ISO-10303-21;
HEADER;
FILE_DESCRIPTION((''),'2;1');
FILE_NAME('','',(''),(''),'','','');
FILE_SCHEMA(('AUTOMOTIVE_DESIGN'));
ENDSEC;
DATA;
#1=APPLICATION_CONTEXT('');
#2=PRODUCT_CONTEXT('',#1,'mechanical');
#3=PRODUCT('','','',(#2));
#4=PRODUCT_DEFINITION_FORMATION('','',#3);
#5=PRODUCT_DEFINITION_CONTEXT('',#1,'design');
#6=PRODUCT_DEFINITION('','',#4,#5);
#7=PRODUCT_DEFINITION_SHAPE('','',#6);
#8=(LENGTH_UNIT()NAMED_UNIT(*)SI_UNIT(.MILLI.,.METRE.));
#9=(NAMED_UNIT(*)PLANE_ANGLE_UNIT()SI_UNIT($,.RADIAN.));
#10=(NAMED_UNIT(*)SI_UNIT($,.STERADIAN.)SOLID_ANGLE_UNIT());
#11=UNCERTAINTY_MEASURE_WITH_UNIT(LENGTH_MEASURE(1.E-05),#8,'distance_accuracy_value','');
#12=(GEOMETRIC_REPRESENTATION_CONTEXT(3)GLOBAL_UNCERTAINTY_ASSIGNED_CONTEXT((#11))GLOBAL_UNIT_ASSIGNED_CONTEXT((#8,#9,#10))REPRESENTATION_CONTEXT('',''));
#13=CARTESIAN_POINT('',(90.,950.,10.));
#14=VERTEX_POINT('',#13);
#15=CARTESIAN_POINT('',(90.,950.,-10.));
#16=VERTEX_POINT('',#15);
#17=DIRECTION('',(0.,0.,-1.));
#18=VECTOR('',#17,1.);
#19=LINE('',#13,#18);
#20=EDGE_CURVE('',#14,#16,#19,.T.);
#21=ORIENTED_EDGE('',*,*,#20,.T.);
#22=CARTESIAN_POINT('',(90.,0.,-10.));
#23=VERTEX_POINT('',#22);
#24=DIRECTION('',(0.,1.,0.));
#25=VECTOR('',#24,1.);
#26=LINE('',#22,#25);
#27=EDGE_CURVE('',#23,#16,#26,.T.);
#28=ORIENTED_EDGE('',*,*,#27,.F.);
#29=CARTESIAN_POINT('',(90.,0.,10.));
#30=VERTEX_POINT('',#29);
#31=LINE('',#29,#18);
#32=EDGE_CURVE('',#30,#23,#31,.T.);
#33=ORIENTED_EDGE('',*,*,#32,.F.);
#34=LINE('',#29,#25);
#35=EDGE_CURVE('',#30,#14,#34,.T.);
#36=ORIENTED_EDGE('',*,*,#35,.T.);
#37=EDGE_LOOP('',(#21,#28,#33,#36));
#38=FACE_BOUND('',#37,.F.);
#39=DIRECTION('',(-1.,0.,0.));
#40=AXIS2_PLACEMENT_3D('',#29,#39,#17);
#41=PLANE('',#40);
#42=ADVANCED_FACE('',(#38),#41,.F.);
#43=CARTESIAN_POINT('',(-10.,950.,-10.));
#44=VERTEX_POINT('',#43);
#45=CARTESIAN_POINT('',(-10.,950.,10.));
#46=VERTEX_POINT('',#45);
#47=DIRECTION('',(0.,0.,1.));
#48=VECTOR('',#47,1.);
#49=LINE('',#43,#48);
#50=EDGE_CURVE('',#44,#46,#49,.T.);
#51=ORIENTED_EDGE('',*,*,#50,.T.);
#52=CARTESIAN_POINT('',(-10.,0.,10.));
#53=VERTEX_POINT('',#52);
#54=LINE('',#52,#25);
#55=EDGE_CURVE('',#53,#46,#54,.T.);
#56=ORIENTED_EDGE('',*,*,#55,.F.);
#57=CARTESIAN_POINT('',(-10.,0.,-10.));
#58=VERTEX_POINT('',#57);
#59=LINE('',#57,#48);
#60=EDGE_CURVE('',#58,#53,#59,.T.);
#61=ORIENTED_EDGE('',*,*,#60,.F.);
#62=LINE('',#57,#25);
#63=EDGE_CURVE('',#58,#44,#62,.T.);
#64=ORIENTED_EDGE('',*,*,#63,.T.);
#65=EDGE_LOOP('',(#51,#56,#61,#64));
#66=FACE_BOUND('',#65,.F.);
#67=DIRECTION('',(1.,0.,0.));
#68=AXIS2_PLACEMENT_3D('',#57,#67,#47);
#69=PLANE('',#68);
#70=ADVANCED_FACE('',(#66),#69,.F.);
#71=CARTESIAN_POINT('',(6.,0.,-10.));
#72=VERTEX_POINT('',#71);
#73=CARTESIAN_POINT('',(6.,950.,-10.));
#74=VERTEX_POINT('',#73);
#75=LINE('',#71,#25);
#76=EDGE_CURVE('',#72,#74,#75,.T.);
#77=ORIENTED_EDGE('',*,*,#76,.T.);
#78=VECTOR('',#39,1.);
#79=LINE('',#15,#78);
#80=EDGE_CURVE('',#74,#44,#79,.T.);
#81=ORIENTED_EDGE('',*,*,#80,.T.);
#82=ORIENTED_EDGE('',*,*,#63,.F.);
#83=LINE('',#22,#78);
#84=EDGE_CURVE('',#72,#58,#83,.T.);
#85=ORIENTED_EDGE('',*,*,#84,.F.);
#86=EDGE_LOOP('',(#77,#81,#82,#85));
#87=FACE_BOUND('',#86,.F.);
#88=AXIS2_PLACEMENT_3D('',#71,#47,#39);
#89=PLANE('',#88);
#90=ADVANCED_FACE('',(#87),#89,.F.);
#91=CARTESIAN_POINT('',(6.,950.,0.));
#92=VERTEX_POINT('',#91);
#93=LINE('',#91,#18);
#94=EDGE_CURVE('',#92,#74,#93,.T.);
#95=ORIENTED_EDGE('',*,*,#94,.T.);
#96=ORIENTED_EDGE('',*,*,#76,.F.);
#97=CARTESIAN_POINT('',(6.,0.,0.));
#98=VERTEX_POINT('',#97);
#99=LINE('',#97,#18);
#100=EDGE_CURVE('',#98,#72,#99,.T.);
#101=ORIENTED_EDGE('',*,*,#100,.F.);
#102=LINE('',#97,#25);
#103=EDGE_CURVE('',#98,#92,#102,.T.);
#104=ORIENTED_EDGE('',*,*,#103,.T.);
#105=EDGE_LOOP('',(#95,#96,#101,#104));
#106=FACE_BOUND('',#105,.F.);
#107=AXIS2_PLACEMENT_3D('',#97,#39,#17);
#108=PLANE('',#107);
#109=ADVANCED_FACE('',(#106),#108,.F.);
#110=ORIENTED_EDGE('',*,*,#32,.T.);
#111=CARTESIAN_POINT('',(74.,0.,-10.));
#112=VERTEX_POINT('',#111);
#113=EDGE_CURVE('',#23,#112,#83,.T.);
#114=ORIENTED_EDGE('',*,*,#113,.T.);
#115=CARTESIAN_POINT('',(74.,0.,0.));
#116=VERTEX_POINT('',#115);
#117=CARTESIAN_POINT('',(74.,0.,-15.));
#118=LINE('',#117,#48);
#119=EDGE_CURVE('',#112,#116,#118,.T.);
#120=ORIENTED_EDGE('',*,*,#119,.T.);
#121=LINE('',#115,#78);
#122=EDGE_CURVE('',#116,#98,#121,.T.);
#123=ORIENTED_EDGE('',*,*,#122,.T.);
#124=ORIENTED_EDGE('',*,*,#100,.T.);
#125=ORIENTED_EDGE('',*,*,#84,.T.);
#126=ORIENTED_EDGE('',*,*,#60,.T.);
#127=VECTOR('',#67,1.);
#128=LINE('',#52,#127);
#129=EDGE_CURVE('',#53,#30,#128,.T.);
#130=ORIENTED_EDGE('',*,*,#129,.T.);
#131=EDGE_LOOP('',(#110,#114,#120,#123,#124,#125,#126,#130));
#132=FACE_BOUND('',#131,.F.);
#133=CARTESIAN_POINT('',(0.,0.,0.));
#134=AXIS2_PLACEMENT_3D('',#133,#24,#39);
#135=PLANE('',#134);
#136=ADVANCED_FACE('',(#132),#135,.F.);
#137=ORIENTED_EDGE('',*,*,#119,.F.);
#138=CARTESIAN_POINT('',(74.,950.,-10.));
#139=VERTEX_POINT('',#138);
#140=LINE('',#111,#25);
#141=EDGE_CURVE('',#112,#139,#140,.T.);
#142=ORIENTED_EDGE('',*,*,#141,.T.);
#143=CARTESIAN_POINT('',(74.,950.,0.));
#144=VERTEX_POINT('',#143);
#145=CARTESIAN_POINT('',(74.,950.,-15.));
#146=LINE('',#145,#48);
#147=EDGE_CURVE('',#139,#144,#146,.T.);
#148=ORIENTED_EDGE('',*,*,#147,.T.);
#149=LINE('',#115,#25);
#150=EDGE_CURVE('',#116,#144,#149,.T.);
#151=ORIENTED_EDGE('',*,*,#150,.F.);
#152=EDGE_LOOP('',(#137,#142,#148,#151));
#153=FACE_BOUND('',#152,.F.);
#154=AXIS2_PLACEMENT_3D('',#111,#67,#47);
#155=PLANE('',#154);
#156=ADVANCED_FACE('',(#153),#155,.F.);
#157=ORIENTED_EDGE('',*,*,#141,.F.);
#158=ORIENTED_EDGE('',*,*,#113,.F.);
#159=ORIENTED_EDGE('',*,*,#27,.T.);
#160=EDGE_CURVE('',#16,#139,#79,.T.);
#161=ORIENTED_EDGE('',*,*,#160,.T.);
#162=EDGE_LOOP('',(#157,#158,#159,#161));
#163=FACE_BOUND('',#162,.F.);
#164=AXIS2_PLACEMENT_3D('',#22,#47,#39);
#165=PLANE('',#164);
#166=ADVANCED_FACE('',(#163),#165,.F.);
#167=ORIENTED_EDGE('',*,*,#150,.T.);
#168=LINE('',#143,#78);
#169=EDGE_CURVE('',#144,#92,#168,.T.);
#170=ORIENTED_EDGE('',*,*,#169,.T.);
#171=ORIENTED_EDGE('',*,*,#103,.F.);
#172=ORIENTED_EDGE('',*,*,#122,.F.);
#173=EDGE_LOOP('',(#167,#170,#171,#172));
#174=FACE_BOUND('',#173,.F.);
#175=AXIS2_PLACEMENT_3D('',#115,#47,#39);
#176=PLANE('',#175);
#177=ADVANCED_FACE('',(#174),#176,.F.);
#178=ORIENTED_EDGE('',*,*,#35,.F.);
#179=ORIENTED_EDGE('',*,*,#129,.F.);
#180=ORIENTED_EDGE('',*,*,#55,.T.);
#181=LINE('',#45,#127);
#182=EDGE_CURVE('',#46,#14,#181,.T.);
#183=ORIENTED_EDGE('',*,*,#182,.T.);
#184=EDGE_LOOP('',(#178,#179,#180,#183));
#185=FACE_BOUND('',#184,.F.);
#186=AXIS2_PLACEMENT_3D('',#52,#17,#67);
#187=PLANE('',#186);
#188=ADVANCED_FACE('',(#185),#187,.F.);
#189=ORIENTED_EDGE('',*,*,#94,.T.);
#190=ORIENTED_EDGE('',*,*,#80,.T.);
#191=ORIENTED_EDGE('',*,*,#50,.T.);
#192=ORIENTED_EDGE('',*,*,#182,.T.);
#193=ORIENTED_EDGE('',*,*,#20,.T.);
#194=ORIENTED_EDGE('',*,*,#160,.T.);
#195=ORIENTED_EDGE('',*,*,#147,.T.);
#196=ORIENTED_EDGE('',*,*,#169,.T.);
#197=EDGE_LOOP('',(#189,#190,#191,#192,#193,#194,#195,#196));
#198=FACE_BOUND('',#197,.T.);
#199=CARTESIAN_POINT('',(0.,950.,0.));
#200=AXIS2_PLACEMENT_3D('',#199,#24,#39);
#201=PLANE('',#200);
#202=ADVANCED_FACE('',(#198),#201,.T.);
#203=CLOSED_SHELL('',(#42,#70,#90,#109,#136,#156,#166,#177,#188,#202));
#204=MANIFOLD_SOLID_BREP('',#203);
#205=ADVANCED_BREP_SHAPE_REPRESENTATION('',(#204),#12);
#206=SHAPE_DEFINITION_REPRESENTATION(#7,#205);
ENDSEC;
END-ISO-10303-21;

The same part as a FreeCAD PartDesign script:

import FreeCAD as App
import Part
import Sketcher
from FreeCAD import Vector
Q = App.Units.Quantity


def add_polygon(sketch, points):
    """Adds a closed chain of lines whose ends are joined by coincident constraints."""
    first, n = sketch.GeometryCount, len(points)
    for a, b in zip(points, points[1:] + points[:1]):
        sketch.addGeometry(Part.LineSegment(App.Vector(*a, 0), App.Vector(*b, 0)), False)
    for i in range(n):
        sketch.addConstraint(Sketcher.Constraint("Coincident", first + i, 2, first + (i + 1) % n, 1))

doc = App.newDocument("Part")
body = doc.addObject("PartDesign::Body", "Body")

# Sketch on XZ plane
sketch1 = doc.addObject("Sketcher::SketchObject", "Sketch")
body.addObject(sketch1)
sketch1.AttachmentSupport = (doc.XZ_Plane, [""])
sketch1.MapMode = "FlatFace"
add_polygon(sketch1, [(-10, -10), (-10, 10), (90, 10), (90, -10), (74, -10), (74, 0), (6, 0), (6, -10)])  # lines 0-7
sketch1.addConstraint(Sketcher.Constraint("Vertical", 0))
sketch1.addConstraint(Sketcher.Constraint("Horizontal", 1))
sketch1.addConstraint(Sketcher.Constraint("Vertical", 2))
sketch1.addConstraint(Sketcher.Constraint("Horizontal", 3))
sketch1.addConstraint(Sketcher.Constraint("Vertical", 4))
sketch1.addConstraint(Sketcher.Constraint("Horizontal", 5))
sketch1.addConstraint(Sketcher.Constraint("Vertical", 6))
sketch1.addConstraint(Sketcher.Constraint("Horizontal", 7))
sketch1.addConstraint(Sketcher.Constraint("PointOnObject", 4, 2, -1))
sketch1.addConstraint(Sketcher.Constraint("Horizontal", 3, 2, 6, 2))
sketch1.addConstraint(Sketcher.Constraint("Equal", 3, 7))
sketch1.addConstraint(Sketcher.Constraint("DistanceX", 1, 1, 1, 2, Q("100 mm")))
sketch1.addConstraint(Sketcher.Constraint("DistanceX", 3, 2, 3, 1, Q("16 mm")))
sketch1.addConstraint(Sketcher.Constraint("DistanceY", 0, 1, 0, 2, Q("20 mm")))
sketch1.addConstraint(Sketcher.Constraint("DistanceY", 4, 1, 4, 2, Q("10 mm")))
sketch1.addConstraint(Sketcher.Constraint("DistanceX", 0, 2, -1, 1, Q("10 mm")))
pad1 = doc.addObject("PartDesign::Pad", "Pad")
body.addObject(pad1)
pad1.Profile = sketch1
pad1.Length = 950
pad1.Reversed = True

doc.recompute()
